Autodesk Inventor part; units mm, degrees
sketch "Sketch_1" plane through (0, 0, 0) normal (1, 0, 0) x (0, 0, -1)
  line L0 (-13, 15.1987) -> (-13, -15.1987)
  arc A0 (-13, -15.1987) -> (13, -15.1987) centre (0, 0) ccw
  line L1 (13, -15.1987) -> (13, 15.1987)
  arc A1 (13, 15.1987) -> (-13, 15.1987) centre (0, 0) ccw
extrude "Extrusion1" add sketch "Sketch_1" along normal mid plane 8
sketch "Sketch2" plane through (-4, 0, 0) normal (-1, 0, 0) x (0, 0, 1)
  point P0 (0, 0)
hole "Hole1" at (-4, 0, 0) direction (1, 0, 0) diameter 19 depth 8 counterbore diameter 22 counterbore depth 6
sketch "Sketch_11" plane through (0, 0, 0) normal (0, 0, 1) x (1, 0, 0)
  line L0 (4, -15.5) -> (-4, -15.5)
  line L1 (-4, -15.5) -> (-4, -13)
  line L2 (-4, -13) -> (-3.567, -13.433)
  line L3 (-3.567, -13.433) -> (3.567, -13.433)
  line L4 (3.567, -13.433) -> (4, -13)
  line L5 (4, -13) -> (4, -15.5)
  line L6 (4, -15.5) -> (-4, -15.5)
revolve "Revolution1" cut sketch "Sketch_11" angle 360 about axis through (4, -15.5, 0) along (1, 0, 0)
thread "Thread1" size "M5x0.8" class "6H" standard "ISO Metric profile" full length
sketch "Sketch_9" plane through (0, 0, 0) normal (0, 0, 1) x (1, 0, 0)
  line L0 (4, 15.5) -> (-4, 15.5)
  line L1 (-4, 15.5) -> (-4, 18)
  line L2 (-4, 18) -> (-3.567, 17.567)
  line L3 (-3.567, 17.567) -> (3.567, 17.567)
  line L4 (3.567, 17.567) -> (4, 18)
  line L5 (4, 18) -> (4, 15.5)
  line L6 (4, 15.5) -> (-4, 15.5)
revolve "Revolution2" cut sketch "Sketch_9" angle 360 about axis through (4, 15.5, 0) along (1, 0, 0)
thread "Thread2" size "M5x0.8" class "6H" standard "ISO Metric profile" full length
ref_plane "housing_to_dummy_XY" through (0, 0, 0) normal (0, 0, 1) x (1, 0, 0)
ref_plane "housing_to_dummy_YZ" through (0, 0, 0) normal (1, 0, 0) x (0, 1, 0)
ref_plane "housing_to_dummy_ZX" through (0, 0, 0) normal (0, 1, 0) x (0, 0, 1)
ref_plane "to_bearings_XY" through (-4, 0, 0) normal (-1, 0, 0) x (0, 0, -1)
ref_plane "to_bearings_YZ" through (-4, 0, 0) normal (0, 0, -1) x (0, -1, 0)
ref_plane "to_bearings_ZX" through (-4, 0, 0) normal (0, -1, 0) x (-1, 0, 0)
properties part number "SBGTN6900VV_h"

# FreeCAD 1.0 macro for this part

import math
import FreeCAD as App
import Part
import Sketcher

V = App.Vector
Q = App.Units.Quantity


def add_polygon(sketch, points):
    """Adds a closed chain of lines whose ends are joined by coincident constraints."""
    first, n = sketch.GeometryCount, len(points)
    for a, b in zip(points, points[1:] + points[:1]):
        sketch.addGeometry(Part.LineSegment(App.Vector(*a, 0), App.Vector(*b, 0)), False)
    for i in range(n):
        sketch.addConstraint(Sketcher.Constraint("Coincident", first + i, 2, first + (i + 1) % n, 1))

doc = App.newDocument("Part")
params = doc.addObject("Spreadsheet::Sheet", "Params")
for row, (alias, value) in enumerate([
    ("sketch1_radius", "20 mm"),
    ("pad1_length", "8 mm"),
    ("sketch2_diameter", "19 mm"),
    ("hole_diameter", "19 mm"),
    ("hole_depth", "8 mm"),
    ("hole_cbore_diameter", "22 mm"),
    ("hole_cbore_depth", "6 mm"),
    ("sketch3_width", "8 mm"),
    ("sketch3_height", "2.5 mm"),
    ("groove_angle", "360 deg"),
    ("sketch4_width", "8 mm"),
    ("sketch4_height", "2.5 mm"),
    ("groove2_angle", "360 deg"),
], start=1):
    params.set(f"A{row}", alias)
    params.set(f"B{row}", "=" + value)
    params.setAlias(f"B{row}", alias)

body = doc.addObject("PartDesign::Body", "Body")

# Sketch on YZ plane
sketch1 = body.newObject("Sketcher::SketchObject", "Sketch")
sketch1.AttachmentSupport = (doc.getObject("YZ_Plane"), [""])
sketch1.MapMode = "FlatFace"
sketch1.addGeometry(Part.ArcOfCircle(Part.Circle(V(0, 0, 0), V(0, 0, 1), 20), math.radians(-41), math.radians(41)), False)
sketch1.addGeometry(Part.LineSegment(V(15, 13, 0), V(-15, 13, 0)), False)
sketch1.addGeometry(Part.ArcOfCircle(Part.Circle(V(0, 0, 0), V(0, 0, 1), 20), math.radians(139), math.radians(221)), False)
sketch1.addGeometry(Part.LineSegment(V(-15, -13, 0), V(15, -13, 0)), False)
sketch1.addConstraint(Sketcher.Constraint("Coincident", 0, 2, 1, 1))
sketch1.addConstraint(Sketcher.Constraint("Coincident", 1, 2, 2, 1))
sketch1.addConstraint(Sketcher.Constraint("Coincident", 2, 2, 3, 1))
sketch1.addConstraint(Sketcher.Constraint("Coincident", 3, 2, 0, 1))
sketch1.addConstraint(Sketcher.Constraint("Horizontal", 1))
sketch1.addConstraint(Sketcher.Constraint("Horizontal", 3))
sketch1.addConstraint(Sketcher.Constraint("Coincident", 0, 3, -1, 1))
sketch1.addConstraint(Sketcher.Constraint("Coincident", 2, 3, -1, 1))
sketch1.addConstraint(Sketcher.Constraint("Equal", 0, 2))
sketch1.addConstraint(Sketcher.Constraint("Vertical", 1, 2, 2, 2))
sketch1.addConstraint(Sketcher.Constraint("Radius", 0, Q("20 mm")))
sketch1.addConstraint(Sketcher.Constraint("DistanceY", -1, 1, 0, 2, Q("13 mm")))
sketch1.setExpression("Constraints[10]", "Params.sketch1_radius")
pad1 = body.newObject("PartDesign::Pad", "Pad")
pad1.Profile = sketch1
pad1.setExpression("Length", "Params.pad1_length")
pad1.Midplane = True

# Sketch on YZ plane
sketch2 = body.newObject("Sketcher::SketchObject", "Sketch001")
sketch2.AttachmentSupport = (doc.getObject("YZ_Plane"), [""])
sketch2.MapMode = "FlatFace"
sketch2.AttachmentOffset = App.Placement(V(0, 0, -4), App.Rotation())
sketch2.addGeometry(Part.Circle(V(0, 0, 0), V(0, 0, 1), 10), False)
sketch2.addConstraint(Sketcher.Constraint("Coincident", 0, 3, -1, 1))
sketch2.addConstraint(Sketcher.Constraint("Diameter", 0, Q("19 mm")))
sketch2.setExpression("Constraints[1]", "Params.sketch2_diameter")
doc.recompute()
hole = body.newObject("PartDesign::Hole", "Hole")
hole.Profile = sketch2
hole.ThreadType = "None"
hole.setExpression("Diameter", "Params.hole_diameter")
hole.DepthType = "Dimension"
hole.setExpression("Depth", "Params.hole_depth")
hole.DrillPoint = "Flat"
hole.HoleCutType = "Counterbore"
hole.setExpression("HoleCutDiameter", "Params.hole_cbore_diameter")
hole.setExpression("HoleCutDepth", "Params.hole_cbore_depth")
hole.Reversed = True

# Sketch on XY plane
sketch3 = body.newObject("Sketcher::SketchObject", "Sketch002")
sketch3.AttachmentSupport = (doc.getObject("XY_Plane"), [""])
sketch3.MapMode = "FlatFace"
add_polygon(sketch3, [(-4, -15.5), (4, -15.5), (4, -13), (3.6, -13.4), (-3.6, -13.4), (-4, -13)])  # lines 0-5
sketch3.addGeometry(Part.LineSegment(V(-4, -15.5, 0), V(4, -15.5, 0)), True)  # axis
sketch3.addConstraint(Sketcher.Constraint("Horizontal", 0))
sketch3.addConstraint(Sketcher.Constraint("Vertical", 1))
sketch3.addConstraint(Sketcher.Constraint("Horizontal", 3))
sketch3.addConstraint(Sketcher.Constraint("Vertical", 5))
sketch3.addConstraint(Sketcher.Constraint("Horizontal", 6))
sketch3.addConstraint(Sketcher.Constraint("Coincident", 6, 1, 5, 2))
sketch3.addConstraint(Sketcher.Constraint("Symmetric", 1, 2, 4, 2, -2))
sketch3.addConstraint(Sketcher.Constraint("Perpendicular", 2, 4))
sketch3.addConstraint(Sketcher.Constraint("Vertical", 1, 2, 6, 2))
sketch3.addConstraint(Sketcher.Constraint("Equal", 2, 4))
sketch3.addConstraint(Sketcher.Constraint("DistanceX", 0, 1, 0, 2, Q("8 mm")))
sketch3.addConstraint(Sketcher.Constraint("DistanceY", 1, 1, 1, 2, Q("2.5 mm")))
sketch3.addConstraint(Sketcher.Constraint("DistanceY", 1, 2, -1, 1, Q("13 mm")))
sketch3.addConstraint(Sketcher.Constraint("DistanceX", 3, 2, 3, 1, Q("7.134 mm")))
sketch3.setExpression("Constraints[16]", "Params.sketch3_width")
sketch3.setExpression("Constraints[17]", "Params.sketch3_height")
groove = body.newObject("PartDesign::Groove", "Groove")
groove.Profile = sketch3
groove.ReferenceAxis = (sketch3, ["Axis0"])
groove.setExpression("Angle", "Params.groove_angle")

# Sketch on XY plane
sketch4 = body.newObject("Sketcher::SketchObject", "Sketch003")
sketch4.AttachmentSupport = (doc.getObject("XY_Plane"), [""])
sketch4.MapMode = "FlatFace"
add_polygon(sketch4, [(-4, 15.5), (4, 15.5), (4, 18), (3.6, 17.6), (-3.6, 17.6), (-4, 18)])  # lines 0-5
sketch4.addGeometry(Part.LineSegment(V(-4, 15.5, 0), V(4, 15.5, 0)), True)  # axis
sketch4.addConstraint(Sketcher.Constraint("Horizontal", 0))
sketch4.addConstraint(Sketcher.Constraint("Vertical", 1))
sketch4.addConstraint(Sketcher.Constraint("Horizontal", 3))
sketch4.addConstraint(Sketcher.Constraint("Vertical", 5))
sketch4.addConstraint(Sketcher.Constraint("Horizontal", 6))
sketch4.addConstraint(Sketcher.Constraint("Coincident", 6, 1, 5, 2))
sketch4.addConstraint(Sketcher.Constraint("Symmetric", 1, 2, 4, 2, -2))
sketch4.addConstraint(Sketcher.Constraint("Perpendicular", 2, 4))
sketch4.addConstraint(Sketcher.Constraint("Vertical", 1, 2, 6, 2))
sketch4.addConstraint(Sketcher.Constraint("Equal", 2, 4))
sketch4.addConstraint(Sketcher.Constraint("DistanceX", 0, 1, 0, 2, Q("8 mm")))
sketch4.addConstraint(Sketcher.Constraint("DistanceY", 1, 1, 1, 2, Q("2.5 mm")))
sketch4.addConstraint(Sketcher.Constraint("DistanceY", -1, 1, 1, 2, Q("18 mm")))
sketch4.addConstraint(Sketcher.Constraint("DistanceX", 3, 2, 3, 1, Q("7.134 mm")))
sketch4.setExpression("Constraints[16]", "Params.sketch4_width")
sketch4.setExpression("Constraints[17]", "Params.sketch4_height")
groove2 = body.newObject("PartDesign::Groove", "Groove001")
groove2.Profile = sketch4
groove2.ReferenceAxis = (sketch4, ["Axis0"])
groove2.setExpression("Angle", "Params.groove2_angle")

doc.recompute()
